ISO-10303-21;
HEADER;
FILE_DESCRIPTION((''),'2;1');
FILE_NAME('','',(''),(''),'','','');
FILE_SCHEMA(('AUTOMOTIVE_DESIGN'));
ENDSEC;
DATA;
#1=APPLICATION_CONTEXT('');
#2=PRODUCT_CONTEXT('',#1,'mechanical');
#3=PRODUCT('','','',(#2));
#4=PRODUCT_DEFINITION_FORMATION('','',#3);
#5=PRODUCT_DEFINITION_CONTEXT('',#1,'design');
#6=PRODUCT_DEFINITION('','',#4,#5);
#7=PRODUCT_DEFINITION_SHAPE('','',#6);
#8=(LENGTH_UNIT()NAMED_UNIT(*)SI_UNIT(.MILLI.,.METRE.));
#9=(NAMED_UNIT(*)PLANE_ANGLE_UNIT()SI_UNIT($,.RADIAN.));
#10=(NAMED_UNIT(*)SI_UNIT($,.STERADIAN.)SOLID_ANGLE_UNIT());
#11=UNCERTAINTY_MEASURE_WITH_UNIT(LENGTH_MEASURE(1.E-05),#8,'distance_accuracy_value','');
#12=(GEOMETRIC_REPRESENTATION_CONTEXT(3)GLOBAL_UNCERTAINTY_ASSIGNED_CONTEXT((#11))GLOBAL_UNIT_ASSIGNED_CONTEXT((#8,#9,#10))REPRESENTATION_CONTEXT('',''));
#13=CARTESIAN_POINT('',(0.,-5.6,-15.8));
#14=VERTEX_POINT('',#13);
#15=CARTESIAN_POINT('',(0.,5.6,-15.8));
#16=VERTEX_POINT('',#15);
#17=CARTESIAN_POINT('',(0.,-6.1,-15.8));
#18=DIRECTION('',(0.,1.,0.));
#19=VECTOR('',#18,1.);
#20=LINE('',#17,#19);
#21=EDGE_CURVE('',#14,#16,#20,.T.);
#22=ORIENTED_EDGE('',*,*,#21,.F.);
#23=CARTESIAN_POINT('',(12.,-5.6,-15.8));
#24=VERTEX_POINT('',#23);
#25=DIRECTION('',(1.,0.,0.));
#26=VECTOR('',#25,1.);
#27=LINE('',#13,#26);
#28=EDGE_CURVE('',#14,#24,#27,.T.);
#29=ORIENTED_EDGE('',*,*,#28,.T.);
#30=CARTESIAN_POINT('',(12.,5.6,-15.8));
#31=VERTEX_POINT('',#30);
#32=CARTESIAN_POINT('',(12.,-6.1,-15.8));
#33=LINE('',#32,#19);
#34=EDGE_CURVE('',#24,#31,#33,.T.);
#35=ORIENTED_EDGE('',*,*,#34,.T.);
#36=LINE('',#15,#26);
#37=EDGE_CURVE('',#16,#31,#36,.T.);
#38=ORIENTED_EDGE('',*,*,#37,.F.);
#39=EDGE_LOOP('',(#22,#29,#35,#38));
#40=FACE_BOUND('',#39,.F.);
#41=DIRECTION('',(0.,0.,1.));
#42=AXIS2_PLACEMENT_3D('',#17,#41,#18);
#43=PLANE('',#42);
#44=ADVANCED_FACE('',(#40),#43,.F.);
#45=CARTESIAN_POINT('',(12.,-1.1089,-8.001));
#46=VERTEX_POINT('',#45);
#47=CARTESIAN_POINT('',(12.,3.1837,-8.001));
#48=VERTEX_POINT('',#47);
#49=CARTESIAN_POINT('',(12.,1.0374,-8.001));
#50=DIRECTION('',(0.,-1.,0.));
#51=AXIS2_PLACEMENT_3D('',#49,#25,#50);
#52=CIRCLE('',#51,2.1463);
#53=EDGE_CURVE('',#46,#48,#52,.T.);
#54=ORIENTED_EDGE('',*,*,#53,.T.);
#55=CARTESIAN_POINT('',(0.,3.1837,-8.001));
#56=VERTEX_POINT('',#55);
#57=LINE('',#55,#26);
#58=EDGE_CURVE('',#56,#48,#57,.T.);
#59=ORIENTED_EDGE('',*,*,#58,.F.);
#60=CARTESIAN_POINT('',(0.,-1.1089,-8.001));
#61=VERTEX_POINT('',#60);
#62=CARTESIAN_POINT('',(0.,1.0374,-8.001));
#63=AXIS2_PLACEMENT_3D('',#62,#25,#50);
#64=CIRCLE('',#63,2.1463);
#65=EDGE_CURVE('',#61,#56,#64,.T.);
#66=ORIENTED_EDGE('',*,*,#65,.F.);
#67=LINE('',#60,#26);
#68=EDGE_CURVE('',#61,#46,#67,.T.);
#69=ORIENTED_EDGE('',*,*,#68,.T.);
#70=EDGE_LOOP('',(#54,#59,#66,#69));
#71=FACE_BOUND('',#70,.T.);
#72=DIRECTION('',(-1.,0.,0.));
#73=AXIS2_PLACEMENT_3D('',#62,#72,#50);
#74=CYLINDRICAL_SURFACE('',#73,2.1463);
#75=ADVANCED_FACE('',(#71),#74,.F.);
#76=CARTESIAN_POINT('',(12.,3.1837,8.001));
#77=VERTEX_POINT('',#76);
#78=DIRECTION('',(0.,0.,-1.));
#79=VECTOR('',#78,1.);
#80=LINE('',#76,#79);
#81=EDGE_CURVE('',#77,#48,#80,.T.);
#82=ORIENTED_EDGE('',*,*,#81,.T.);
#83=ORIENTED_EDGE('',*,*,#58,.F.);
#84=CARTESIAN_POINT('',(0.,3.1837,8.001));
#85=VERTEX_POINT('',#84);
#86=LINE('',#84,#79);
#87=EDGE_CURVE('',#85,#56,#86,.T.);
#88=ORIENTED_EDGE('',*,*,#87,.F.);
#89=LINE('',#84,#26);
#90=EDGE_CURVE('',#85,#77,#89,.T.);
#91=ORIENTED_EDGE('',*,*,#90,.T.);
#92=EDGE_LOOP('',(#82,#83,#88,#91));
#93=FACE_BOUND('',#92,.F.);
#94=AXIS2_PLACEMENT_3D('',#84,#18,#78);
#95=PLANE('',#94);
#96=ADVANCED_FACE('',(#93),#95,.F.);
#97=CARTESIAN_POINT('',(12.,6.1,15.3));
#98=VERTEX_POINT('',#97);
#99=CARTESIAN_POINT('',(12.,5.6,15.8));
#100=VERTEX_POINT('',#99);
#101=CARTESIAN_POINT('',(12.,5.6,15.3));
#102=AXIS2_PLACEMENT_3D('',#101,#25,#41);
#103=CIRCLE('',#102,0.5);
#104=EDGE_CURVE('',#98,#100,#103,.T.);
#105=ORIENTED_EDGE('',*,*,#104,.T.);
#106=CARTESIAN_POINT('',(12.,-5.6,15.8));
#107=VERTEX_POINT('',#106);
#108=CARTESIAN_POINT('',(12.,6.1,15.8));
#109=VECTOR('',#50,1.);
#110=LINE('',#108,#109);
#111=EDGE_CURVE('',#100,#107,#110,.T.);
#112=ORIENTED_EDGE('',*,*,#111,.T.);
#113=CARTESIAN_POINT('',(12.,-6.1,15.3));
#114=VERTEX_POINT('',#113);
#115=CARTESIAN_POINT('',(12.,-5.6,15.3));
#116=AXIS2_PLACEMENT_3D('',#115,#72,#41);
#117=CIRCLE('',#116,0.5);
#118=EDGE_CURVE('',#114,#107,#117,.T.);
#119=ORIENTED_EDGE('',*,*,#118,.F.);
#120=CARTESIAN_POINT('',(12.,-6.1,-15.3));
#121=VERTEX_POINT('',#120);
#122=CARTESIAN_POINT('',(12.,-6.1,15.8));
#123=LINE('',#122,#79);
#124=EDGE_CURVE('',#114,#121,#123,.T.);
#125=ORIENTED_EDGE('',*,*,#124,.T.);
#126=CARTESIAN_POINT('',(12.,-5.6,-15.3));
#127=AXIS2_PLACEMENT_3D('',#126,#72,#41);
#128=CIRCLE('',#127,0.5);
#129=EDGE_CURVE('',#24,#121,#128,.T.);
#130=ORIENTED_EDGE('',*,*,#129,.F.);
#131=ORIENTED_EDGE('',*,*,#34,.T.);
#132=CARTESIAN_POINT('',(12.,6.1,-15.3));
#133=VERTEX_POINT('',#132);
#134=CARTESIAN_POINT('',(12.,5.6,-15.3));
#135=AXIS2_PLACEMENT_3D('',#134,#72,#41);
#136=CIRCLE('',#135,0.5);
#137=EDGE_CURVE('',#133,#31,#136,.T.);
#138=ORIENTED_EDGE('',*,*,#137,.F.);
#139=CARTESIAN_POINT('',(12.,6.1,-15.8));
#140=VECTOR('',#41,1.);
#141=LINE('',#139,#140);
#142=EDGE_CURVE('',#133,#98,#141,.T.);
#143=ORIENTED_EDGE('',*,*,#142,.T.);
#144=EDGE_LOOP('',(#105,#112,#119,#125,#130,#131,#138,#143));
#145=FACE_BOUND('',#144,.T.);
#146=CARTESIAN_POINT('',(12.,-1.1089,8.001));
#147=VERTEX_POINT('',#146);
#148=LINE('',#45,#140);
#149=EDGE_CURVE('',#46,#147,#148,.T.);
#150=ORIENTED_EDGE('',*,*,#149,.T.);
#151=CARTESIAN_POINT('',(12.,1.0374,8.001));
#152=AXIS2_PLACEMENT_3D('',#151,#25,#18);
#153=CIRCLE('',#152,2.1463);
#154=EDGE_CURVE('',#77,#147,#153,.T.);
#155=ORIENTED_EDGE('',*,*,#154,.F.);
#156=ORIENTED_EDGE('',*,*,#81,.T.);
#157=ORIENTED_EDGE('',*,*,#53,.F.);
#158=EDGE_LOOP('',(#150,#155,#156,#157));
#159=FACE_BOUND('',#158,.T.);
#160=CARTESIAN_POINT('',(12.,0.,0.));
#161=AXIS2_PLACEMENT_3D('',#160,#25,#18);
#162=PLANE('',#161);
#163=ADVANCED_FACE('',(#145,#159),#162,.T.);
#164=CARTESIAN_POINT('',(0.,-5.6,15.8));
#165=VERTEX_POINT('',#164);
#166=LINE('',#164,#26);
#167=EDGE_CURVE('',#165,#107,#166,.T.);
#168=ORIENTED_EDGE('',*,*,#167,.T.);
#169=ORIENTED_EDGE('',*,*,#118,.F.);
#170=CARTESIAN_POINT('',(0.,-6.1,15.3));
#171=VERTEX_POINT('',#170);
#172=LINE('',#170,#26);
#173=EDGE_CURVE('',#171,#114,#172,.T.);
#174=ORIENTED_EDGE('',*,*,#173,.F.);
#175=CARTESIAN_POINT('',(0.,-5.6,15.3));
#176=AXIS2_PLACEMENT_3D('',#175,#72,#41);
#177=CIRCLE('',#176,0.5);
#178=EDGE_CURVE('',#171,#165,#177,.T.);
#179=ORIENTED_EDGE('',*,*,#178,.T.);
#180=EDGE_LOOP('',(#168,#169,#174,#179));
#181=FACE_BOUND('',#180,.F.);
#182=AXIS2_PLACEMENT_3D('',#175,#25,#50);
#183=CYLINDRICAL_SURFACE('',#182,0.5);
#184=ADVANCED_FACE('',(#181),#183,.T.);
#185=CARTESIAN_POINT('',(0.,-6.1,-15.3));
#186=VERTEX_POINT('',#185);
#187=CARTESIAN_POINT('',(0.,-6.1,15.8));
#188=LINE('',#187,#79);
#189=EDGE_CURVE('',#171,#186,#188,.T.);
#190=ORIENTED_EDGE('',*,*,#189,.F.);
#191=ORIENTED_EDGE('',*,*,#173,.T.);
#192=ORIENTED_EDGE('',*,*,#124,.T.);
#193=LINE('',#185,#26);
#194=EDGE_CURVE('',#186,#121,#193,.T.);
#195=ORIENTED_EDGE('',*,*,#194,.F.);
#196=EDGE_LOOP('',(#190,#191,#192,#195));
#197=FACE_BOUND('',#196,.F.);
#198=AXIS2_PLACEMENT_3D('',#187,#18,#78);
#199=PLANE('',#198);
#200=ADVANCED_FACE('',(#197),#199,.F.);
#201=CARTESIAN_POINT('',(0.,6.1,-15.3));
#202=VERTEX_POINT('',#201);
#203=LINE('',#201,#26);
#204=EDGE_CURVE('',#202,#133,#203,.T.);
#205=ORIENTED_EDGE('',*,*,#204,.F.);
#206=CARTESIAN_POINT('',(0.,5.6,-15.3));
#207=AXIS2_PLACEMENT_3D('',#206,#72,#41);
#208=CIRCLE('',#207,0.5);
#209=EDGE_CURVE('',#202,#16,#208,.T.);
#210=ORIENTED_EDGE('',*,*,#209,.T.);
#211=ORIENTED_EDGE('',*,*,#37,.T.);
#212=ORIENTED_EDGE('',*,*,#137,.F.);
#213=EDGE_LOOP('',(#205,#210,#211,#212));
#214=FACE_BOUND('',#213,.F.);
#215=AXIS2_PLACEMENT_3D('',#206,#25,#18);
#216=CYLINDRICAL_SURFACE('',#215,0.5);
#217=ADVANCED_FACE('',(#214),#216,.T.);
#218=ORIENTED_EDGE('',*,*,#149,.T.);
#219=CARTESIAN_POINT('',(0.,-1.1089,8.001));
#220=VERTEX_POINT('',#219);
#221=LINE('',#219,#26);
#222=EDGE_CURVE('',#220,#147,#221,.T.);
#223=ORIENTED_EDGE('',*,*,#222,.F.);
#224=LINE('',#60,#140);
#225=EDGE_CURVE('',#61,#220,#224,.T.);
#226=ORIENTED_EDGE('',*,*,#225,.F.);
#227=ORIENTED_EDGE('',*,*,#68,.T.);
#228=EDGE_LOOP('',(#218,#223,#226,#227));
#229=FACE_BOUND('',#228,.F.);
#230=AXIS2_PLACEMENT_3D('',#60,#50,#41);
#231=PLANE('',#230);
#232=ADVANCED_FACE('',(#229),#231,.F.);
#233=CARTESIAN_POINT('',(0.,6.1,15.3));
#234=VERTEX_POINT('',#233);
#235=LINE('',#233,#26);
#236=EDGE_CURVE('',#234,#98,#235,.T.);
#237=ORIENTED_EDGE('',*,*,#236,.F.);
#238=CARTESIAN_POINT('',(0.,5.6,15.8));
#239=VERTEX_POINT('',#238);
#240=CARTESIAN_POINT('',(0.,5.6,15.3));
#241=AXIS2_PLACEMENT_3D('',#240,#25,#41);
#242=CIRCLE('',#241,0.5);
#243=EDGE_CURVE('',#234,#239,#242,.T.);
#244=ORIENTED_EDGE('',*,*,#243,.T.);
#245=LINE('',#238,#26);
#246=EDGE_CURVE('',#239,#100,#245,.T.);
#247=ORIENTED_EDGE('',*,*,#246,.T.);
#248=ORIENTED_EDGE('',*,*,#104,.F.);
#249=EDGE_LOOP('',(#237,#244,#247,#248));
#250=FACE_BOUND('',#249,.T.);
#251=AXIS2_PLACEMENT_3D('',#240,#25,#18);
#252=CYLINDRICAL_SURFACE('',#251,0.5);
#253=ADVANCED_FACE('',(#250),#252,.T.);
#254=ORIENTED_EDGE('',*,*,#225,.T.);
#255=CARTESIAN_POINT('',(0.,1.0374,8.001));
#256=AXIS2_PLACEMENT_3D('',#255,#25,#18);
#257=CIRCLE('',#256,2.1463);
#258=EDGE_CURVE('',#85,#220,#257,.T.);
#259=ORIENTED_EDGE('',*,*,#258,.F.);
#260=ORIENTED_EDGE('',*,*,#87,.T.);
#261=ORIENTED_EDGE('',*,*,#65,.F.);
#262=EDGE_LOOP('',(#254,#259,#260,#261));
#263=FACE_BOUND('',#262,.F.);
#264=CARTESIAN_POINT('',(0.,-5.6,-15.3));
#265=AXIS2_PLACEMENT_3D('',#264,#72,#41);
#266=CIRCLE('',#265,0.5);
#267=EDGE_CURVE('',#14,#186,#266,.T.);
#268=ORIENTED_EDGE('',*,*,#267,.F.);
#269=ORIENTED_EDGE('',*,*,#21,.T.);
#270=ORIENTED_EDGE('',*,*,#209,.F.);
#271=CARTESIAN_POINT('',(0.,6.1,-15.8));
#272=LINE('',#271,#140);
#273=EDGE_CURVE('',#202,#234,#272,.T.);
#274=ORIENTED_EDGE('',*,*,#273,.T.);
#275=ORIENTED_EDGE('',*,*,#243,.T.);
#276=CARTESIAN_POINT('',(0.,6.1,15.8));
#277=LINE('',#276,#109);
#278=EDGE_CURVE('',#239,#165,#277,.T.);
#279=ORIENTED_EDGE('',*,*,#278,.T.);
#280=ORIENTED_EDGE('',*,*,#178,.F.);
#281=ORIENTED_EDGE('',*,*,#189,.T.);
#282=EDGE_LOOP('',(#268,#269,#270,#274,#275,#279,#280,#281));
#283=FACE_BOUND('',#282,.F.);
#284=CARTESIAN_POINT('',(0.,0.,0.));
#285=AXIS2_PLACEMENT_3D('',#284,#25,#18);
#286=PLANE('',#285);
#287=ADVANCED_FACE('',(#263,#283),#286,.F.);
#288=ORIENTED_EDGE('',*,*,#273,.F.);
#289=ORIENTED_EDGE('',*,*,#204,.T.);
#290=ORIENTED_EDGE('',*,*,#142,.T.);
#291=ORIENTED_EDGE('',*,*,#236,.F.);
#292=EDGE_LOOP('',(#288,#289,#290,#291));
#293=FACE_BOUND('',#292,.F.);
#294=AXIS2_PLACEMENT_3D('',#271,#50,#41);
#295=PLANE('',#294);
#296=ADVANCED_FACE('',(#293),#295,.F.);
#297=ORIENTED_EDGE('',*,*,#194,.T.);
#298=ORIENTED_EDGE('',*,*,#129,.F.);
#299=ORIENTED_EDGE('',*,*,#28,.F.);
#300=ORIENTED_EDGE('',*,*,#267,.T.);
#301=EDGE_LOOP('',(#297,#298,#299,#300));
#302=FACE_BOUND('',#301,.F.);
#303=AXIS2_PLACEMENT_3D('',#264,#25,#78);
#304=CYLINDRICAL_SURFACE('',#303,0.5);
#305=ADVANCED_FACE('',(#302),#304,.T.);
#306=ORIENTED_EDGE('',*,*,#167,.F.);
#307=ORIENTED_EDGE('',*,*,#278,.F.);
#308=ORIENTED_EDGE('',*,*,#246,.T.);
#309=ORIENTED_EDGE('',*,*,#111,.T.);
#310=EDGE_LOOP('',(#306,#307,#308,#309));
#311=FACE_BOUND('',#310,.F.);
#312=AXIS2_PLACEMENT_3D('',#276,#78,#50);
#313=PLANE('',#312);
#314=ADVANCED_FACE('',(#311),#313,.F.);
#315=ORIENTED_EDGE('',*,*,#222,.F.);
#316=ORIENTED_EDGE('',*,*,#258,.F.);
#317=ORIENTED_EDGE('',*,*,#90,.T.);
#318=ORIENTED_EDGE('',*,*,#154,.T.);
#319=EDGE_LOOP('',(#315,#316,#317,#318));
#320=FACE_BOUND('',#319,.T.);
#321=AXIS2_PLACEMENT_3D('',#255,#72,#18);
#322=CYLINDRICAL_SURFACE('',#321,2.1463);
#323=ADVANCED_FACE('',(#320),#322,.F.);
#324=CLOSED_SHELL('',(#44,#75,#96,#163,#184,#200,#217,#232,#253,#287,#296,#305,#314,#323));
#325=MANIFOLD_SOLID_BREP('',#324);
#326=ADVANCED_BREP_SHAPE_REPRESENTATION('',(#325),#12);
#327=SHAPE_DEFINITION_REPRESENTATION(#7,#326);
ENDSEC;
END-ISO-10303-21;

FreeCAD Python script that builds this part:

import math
import FreeCAD as App
import Part
import Sketcher
from FreeCAD import Vector


def edges_at(feature, points):
    """Names of the edges that pass closest to the given points."""
    edges = feature.Shape.Edges
    near = lambda p: min(range(len(edges)), key=lambda i: edges[i].distToShape(Part.Vertex(*p))[0])
    return sorted({f"Edge{near(p) + 1}" for p in points})

doc = App.newDocument("Part")
body = doc.addObject("PartDesign::Body", "Body")

sketch1 = body.newObject("Sketcher::SketchObject", "Sketch")
sketch1.AttachmentSupport = (doc.getObject("YZ_Plane"), [""])
sketch1.MapMode = "FlatFace"
sketch1.addGeometry(Part.LineSegment(Vector(6.1, -15.8, 0), Vector(6.1, 15.8, 0)), False)
sketch1.addGeometry(Part.LineSegment(Vector(6.1, 15.8, 0), Vector(-6.1, 15.8, 0)), False)
sketch1.addGeometry(Part.LineSegment(Vector(-6.1, 15.8, 0), Vector(-6.1, -15.8, 0)), False)
sketch1.addGeometry(Part.LineSegment(Vector(-6.1, -15.8, 0), Vector(6.1, -15.8, 0)), False)
sketch1.addGeometry(Part.ArcOfCircle(Part.Circle(Vector(1.0374, 8.001, 0), Vector(0, 0, 1), 2.1463), math.radians(0), math.radians(180)), False)
sketch1.addGeometry(Part.LineSegment(Vector(3.1837, 8.001, 0), Vector(3.1837, -8.001, 0)), False)
sketch1.addGeometry(Part.ArcOfCircle(Part.Circle(Vector(1.0374, -8.001, 0), Vector(0, 0, 1), 2.1463), math.radians(180), math.radians(360)), False)
sketch1.addGeometry(Part.LineSegment(Vector(-1.1089, -8.001, 0), Vector(-1.1089, 8.001, 0)), False)
sketch1.addConstraint(Sketcher.Constraint("Coincident", 0, 2, 1, 1))
sketch1.addConstraint(Sketcher.Constraint("Coincident", 1, 2, 2, 1))
sketch1.addConstraint(Sketcher.Constraint("Coincident", 2, 2, 3, 1))
sketch1.addConstraint(Sketcher.Constraint("Coincident", 3, 2, 0, 1))
sketch1.addConstraint(Sketcher.Constraint("Tangent", 4, 1, 5, 1))
sketch1.addConstraint(Sketcher.Constraint("Tangent", 5, 2, 6, 2))
sketch1.addConstraint(Sketcher.Constraint("Tangent", 6, 1, 7, 1))
sketch1.addConstraint(Sketcher.Constraint("Tangent", 7, 2, 4, 2))
sketch1.addConstraint(Sketcher.Constraint("Vertical", 0))
sketch1.addConstraint(Sketcher.Constraint("Horizontal", 1))
sketch1.addConstraint(Sketcher.Constraint("Vertical", 2))
sketch1.addConstraint(Sketcher.Constraint("Horizontal", 3))
sketch1.addConstraint(Sketcher.Constraint("Vertical", 5))
sketch1.addConstraint(Sketcher.Constraint("Vertical", 7))
sketch1.addConstraint(Sketcher.Constraint("Symmetric", 0, 2, 2, 2, -1, 1))
sketch1.addConstraint(Sketcher.Constraint("DistanceX", 1, 2, 1, 1, 12.2))
sketch1.addConstraint(Sketcher.Constraint("DistanceY", 0, 1, 0, 2, 31.6))
sketch1.addConstraint(Sketcher.Constraint("Radius", 4, 2.1463))
sketch1.addConstraint(Sketcher.Constraint("DistanceY", 5, 2, 5, 1, 16.002))
sketch1.addConstraint(Sketcher.Constraint("DistanceX", 1, 2, 4, 3, 7.1374))
sketch1.addConstraint(Sketcher.Constraint("DistanceY", -1, 1, 4, 3, 8.001))
pad1 = body.newObject("PartDesign::Pad", "Pad")
pad1.Profile = sketch1
pad1.Length = 12
doc.recompute()

fillet = body.newObject("PartDesign::Fillet", "Fillet")
fillet.Base = (pad1, edges_at(pad1, [
    (6, -6.1, 15.8),
    (6, 6.1, 15.8),
    (6, 6.1, -15.8),
    (6, -6.1, -15.8),
]))
fillet.Radius = 0.5

doc.recompute()
